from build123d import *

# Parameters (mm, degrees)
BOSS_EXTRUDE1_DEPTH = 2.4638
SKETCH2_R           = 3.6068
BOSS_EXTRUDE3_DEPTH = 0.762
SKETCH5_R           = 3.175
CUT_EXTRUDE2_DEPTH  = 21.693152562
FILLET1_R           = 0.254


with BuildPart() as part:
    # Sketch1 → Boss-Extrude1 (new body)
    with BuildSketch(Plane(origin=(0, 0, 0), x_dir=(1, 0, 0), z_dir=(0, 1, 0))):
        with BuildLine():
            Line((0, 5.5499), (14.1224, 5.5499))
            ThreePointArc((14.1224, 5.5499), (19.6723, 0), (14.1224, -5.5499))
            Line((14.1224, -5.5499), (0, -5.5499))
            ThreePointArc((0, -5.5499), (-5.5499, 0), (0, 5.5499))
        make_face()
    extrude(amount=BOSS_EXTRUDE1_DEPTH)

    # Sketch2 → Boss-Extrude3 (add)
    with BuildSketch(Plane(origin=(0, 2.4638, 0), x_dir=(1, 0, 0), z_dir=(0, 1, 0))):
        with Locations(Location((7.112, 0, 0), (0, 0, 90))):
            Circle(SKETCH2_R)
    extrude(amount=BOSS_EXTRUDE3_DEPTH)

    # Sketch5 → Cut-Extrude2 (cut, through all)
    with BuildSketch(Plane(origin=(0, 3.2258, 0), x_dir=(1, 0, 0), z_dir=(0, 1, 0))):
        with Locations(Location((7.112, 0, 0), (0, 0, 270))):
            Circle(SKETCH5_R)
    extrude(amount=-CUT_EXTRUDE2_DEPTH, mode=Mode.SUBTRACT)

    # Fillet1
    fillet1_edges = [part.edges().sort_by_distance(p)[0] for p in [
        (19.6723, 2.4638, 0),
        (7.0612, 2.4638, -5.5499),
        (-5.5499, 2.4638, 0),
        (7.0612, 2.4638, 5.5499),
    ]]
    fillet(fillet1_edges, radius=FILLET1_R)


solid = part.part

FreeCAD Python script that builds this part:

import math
import FreeCAD as App
import Part
import Sketcher
from FreeCAD import Vector
Q = App.Units.Quantity


def edges_at(feature, points):
    """Names of the edges that pass closest to the given points."""
    edges = feature.Shape.Edges
    near = lambda p: min(range(len(edges)), key=lambda i: edges[i].distToShape(Part.Vertex(*p))[0])
    return sorted({f"Edge{near(p) + 1}" for p in points})

doc = App.newDocument("Part")
params = doc.addObject("Spreadsheet::Sheet", "Params")
for row, (alias, value) in enumerate([
    ("sketch1_width", "0.556 in"),
    ("pad1_length", "0.097 in"),
    ("sketch2_diameter", "0.284 in"),
    ("pad2_length", "0.03 in"),
    ("sketch3_diameter", "0.25 in"),
    ("fillet_radius", "0.01 in"),
], start=1):
    params.set(f"A{row}", alias)
    params.set(f"B{row}", "=" + value)
    params.setAlias(f"B{row}", alias)

body = doc.addObject("PartDesign::Body", "Body")

sketch1 = doc.addObject("Sketcher::SketchObject", "Sketch")
body.addObject(sketch1)
sketch1.AttachmentSupport = (doc.XZ_Plane, [""])
sketch1.MapMode = "FlatFace"
sketch1.addGeometry(Part.LineSegment(Vector(14, -6, 0), Vector(0, -6, 0)), False)
sketch1.addGeometry(Part.ArcOfCircle(Part.Circle(Vector(0, 0, 0), Vector(0, 0, 1), 6), math.radians(90), math.radians(270)), False)
sketch1.addGeometry(Part.LineSegment(Vector(0, 6, 0), Vector(14, 6, 0)), False)
sketch1.addGeometry(Part.ArcOfCircle(Part.Circle(Vector(14, 0, 0), Vector(0, 0, 1), 6), math.radians(-90), math.radians(90)), False)
sketch1.addConstraint(Sketcher.Constraint("Tangent", 0, 2, 1, 2))
sketch1.addConstraint(Sketcher.Constraint("Tangent", 1, 1, 2, 1))
sketch1.addConstraint(Sketcher.Constraint("Tangent", 2, 2, 3, 2))
sketch1.addConstraint(Sketcher.Constraint("Tangent", 3, 1, 0, 1))
sketch1.addConstraint(Sketcher.Constraint("Horizontal", 0))
sketch1.addConstraint(Sketcher.Constraint("Horizontal", 2))
sketch1.addConstraint(Sketcher.Constraint("Coincident", 1, 3, -1, 1))
sketch1.addConstraint(Sketcher.Constraint("Radius", 1, Q("0.2185 in")))
sketch1.addConstraint(Sketcher.Constraint("DistanceX", 0, 2, 0, 1, Q("0.556 in")))
sketch1.setExpression("Constraints[8]", "Params.sketch1_width")
pad1 = doc.addObject("PartDesign::Pad", "Pad")
body.addObject(pad1)
pad1.Profile = sketch1
pad1.setExpression("Length", "Params.pad1_length")
pad1.Reversed = True

sketch2 = doc.addObject("Sketcher::SketchObject", "Sketch001")
body.addObject(sketch2)
sketch2.AttachmentSupport = (doc.XZ_Plane, [""])
sketch2.MapMode = "FlatFace"
sketch2.AttachmentOffset = App.Placement(Vector(0, 0, -0.097 * 25.4), App.Rotation())
sketch2.addGeometry(Part.Circle(Vector(7.1, 0, 0), Vector(0, 0, 1), 3.6), False)
sketch2.addConstraint(Sketcher.Constraint("PointOnObject", 0, 3, -1))
sketch2.addConstraint(Sketcher.Constraint("Diameter", 0, Q("0.284 in")))
sketch2.addConstraint(Sketcher.Constraint("DistanceX", -1, 1, 0, 3, Q("0.28 in")))
sketch2.setExpression("Constraints[1]", "Params.sketch2_diameter")
pad2 = doc.addObject("PartDesign::Pad", "Pad001")
body.addObject(pad2)
pad2.Profile = sketch2
pad2.setExpression("Length", "Params.pad2_length")
pad2.Reversed = True

sketch3 = doc.addObject("Sketcher::SketchObject", "Sketch002")
body.addObject(sketch3)
sketch3.AttachmentSupport = (doc.XZ_Plane, [""])
sketch3.MapMode = "FlatFace"
sketch3.AttachmentOffset = App.Placement(Vector(0, 0, -0.127 * 25.4), App.Rotation())
sketch3.addGeometry(Part.Circle(Vector(7.1, 0, 0), Vector(0, 0, 1), 3.2), False)
sketch3.addConstraint(Sketcher.Constraint("PointOnObject", 0, 3, -1))
sketch3.addConstraint(Sketcher.Constraint("Diameter", 0, Q("0.25 in")))
sketch3.addConstraint(Sketcher.Constraint("DistanceX", -1, 1, 0, 3, Q("0.28 in")))
sketch3.setExpression("Constraints[1]", "Params.sketch3_diameter")
pocket1 = doc.addObject("PartDesign::Pocket", "Pocket")
body.addObject(pocket1)
pocket1.Profile = sketch3
pocket1.Type = "ThroughAll"
pocket1.Reversed = True
doc.recompute()

fillet = doc.addObject("PartDesign::Fillet", "Fillet")
body.addObject(fillet)
fillet.Base = (pocket1, edges_at(pocket1, [
    (19.672, 2.464, 0),
    (7.061, 2.464, -5.55),
    (-5.55, 2.464, 0),
    (7.061, 2.464, 5.55),
]))
fillet.setExpression("Radius", "Params.fillet_radius")

doc.recompute()
